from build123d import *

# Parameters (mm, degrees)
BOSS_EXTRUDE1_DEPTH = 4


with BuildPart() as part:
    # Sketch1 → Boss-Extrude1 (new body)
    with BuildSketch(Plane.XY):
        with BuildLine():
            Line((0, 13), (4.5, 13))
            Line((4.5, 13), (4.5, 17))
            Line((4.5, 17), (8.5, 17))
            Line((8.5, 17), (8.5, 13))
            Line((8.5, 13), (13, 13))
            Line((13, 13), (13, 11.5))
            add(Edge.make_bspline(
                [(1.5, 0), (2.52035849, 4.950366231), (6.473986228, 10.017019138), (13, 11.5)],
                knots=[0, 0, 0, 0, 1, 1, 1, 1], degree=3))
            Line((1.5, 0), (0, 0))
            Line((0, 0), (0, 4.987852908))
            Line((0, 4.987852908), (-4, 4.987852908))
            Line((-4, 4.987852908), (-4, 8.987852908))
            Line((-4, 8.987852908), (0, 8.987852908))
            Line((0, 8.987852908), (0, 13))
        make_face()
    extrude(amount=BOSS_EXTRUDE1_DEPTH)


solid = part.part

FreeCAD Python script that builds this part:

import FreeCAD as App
import Part
import Sketcher

doc = App.newDocument("Part")
body = doc.addObject("PartDesign::Body", "Body")

# Sketch on XY plane
sketch1 = body.newObject("Sketcher::SketchObject", "Sketch")
sketch1.AttachmentSupport = (doc.getObject("XY_Plane"), [""])
sketch1.MapMode = "FlatFace"
sketch1.addGeometry(Part.LineSegment(App.Vector(4.5, 13, 0), App.Vector(0, 13, 0)), False)
sketch1.addGeometry(Part.LineSegment(App.Vector(0, 13, 0), App.Vector(0, 8.987853, 0)), False)
sketch1.addGeometry(Part.LineSegment(App.Vector(0, 8.987853, 0), App.Vector(-4, 8.987853, 0)), False)
sketch1.addGeometry(Part.LineSegment(App.Vector(-4, 8.987853, 0), App.Vector(-4, 4.987853, 0)), False)
sketch1.addGeometry(Part.LineSegment(App.Vector(-4, 4.987853, 0), App.Vector(0, 4.987853, 0)), False)
sketch1.addGeometry(Part.LineSegment(App.Vector(0, 4.987853, 0), App.Vector(0, 0, 0)), False)
sketch1.addGeometry(Part.LineSegment(App.Vector(0, 0, 0), App.Vector(1.5, 0, 0)), False)
sketch1.addGeometry(Part.BSplineCurve([App.Vector(1.5, 0, 0), App.Vector(2.520358, 4.950366, 0), App.Vector(6.473986, 10.017019, 0), App.Vector(13, 11.5, 0)], [4, 4], [0, 1], False, 3, [1, 1, 1, 1], False), False)
sketch1.addGeometry(Part.LineSegment(App.Vector(13, 11.5, 0), App.Vector(13, 13, 0)), False)
sketch1.addGeometry(Part.LineSegment(App.Vector(13, 13, 0), App.Vector(8.5, 13, 0)), False)
sketch1.addGeometry(Part.LineSegment(App.Vector(8.5, 13, 0), App.Vector(8.5, 17, 0)), False)
sketch1.addGeometry(Part.LineSegment(App.Vector(8.5, 17, 0), App.Vector(4.5, 17, 0)), False)
sketch1.addGeometry(Part.LineSegment(App.Vector(4.5, 17, 0), App.Vector(4.5, 13, 0)), False)
sketch1.addConstraint(Sketcher.Constraint("Block", 7))
sketch1.addConstraint(Sketcher.Constraint("Coincident", 0, 2, 1, 1))
sketch1.addConstraint(Sketcher.Constraint("Coincident", 1, 2, 2, 1))
sketch1.addConstraint(Sketcher.Constraint("Coincident", 2, 2, 3, 1))
sketch1.addConstraint(Sketcher.Constraint("Coincident", 3, 2, 4, 1))
sketch1.addConstraint(Sketcher.Constraint("Coincident", 4, 2, 5, 1))
sketch1.addConstraint(Sketcher.Constraint("Coincident", 5, 2, 6, 1))
sketch1.addConstraint(Sketcher.Constraint("Coincident", 6, 2, 7, 1))
sketch1.addConstraint(Sketcher.Constraint("Coincident", 7, 2, 8, 1))
sketch1.addConstraint(Sketcher.Constraint("Coincident", 8, 2, 9, 1))
sketch1.addConstraint(Sketcher.Constraint("Coincident", 9, 2, 10, 1))
sketch1.addConstraint(Sketcher.Constraint("Coincident", 10, 2, 11, 1))
sketch1.addConstraint(Sketcher.Constraint("Coincident", 11, 2, 12, 1))
sketch1.addConstraint(Sketcher.Constraint("Coincident", 12, 2, 0, 1))
sketch1.addConstraint(Sketcher.Constraint("Horizontal", 0))
sketch1.addConstraint(Sketcher.Constraint("Vertical", 1))
sketch1.addConstraint(Sketcher.Constraint("Horizontal", 2))
sketch1.addConstraint(Sketcher.Constraint("Vertical", 3))
sketch1.addConstraint(Sketcher.Constraint("Horizontal", 4))
sketch1.addConstraint(Sketcher.Constraint("Vertical", 5))
sketch1.addConstraint(Sketcher.Constraint("Horizontal", 6))
sketch1.addConstraint(Sketcher.Constraint("Vertical", 8))
sketch1.addConstraint(Sketcher.Constraint("Horizontal", 9))
sketch1.addConstraint(Sketcher.Constraint("Vertical", 10))
sketch1.addConstraint(Sketcher.Constraint("Horizontal", 11))
sketch1.addConstraint(Sketcher.Constraint("Vertical", 12))
sketch1.addConstraint(Sketcher.Constraint("PointOnObject", 0, 2, -2))
sketch1.addConstraint(Sketcher.Constraint("PointOnObject", 4, 2, -2))
sketch1.addConstraint(Sketcher.Constraint("DistanceX", 2, 2, 2, 1, 4.0))
sketch1.addConstraint(Sketcher.Constraint("DistanceX", 11, 2, 11, 1, 4.0))
sketch1.addConstraint(Sketcher.Constraint("DistanceY", 3, 2, 3, 1, 4.0))
sketch1.addConstraint(Sketcher.Constraint("DistanceY", 10, 1, 10, 2, 4.0))
sketch1.addConstraint(Sketcher.Constraint("DistanceY", 12, 2, 12, 1, 4.0))
sketch1.addConstraint(Sketcher.Constraint("DistanceX", 0, 2, 0, 1, 4.5))
sketch1.addConstraint(Sketcher.Constraint("DistanceY", 8, 1, 8, 2, 1.5))
sketch1.addConstraint(Sketcher.Constraint("DistanceY", 1, 2, 1, 1, 4.012147))
pad1 = body.newObject("PartDesign::Pad", "Pad")
pad1.Profile = sketch1
pad1.Length = 4

doc.recompute()
